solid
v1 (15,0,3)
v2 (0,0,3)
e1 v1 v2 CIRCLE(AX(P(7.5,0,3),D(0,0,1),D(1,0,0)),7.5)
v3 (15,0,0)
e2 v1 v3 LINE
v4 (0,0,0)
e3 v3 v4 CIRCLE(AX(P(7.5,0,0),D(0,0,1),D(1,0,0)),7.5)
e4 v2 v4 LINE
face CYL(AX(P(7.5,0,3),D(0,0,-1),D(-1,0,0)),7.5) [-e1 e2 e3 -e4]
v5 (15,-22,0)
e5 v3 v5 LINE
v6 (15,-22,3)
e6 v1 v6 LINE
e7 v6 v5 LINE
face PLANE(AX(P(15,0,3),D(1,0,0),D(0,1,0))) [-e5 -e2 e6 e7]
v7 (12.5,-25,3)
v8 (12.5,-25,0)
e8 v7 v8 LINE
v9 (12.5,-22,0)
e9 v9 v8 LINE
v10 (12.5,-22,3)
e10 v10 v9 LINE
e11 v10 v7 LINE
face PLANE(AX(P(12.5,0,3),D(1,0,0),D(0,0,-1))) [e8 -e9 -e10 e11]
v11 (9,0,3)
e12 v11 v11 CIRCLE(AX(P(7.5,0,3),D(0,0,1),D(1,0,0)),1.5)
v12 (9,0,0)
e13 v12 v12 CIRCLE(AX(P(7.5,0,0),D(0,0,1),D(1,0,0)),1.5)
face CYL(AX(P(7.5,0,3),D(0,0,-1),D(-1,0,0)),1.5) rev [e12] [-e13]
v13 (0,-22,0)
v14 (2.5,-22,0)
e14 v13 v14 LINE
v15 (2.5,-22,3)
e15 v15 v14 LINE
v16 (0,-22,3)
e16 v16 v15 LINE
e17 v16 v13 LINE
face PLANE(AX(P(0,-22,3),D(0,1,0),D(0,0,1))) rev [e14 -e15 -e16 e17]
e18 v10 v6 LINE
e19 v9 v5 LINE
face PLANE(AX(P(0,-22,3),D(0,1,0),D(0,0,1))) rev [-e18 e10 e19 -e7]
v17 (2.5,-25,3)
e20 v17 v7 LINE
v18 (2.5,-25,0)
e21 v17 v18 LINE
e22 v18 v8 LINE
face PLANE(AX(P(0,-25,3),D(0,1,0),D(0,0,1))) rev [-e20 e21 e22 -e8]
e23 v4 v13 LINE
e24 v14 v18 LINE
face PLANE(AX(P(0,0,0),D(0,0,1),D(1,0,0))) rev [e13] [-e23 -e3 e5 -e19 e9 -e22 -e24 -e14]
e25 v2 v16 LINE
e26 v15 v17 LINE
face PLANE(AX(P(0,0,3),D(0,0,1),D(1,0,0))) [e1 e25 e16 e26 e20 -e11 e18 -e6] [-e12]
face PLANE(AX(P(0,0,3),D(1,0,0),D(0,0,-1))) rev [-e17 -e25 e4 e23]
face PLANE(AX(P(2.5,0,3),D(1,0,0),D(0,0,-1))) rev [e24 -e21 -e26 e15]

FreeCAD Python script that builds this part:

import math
import FreeCAD as App
import Part
import Sketcher
from FreeCAD import Vector
Q = App.Units.Quantity

doc = App.newDocument("Part")
body = doc.addObject("PartDesign::Body", "Body")

# Sketch on XY plane
sketch1 = doc.addObject("Sketcher::SketchObject", "Sketch")
body.addObject(sketch1)
sketch1.AttachmentSupport = (doc.XY_Plane, [""])
sketch1.MapMode = "FlatFace"
sketch1.addGeometry([
    Part.LineSegment(Vector(15, -22, 0), Vector(15, 0, 0)),  # 0
    Part.ArcOfCircle(Part.Circle(Vector(7.5, 0, 0), Vector(0, 0, 1), 7.5), math.radians(0), math.radians(180)),  # 1
    Part.LineSegment(Vector(0, 0, 0), Vector(0, -22, 0)),  # 2
    Part.LineSegment(Vector(0, -22, 0), Vector(2.5, -22, 0)),  # 3
    Part.LineSegment(Vector(2.5, -22, 0), Vector(2.5, -25, 0)),  # 4
    Part.LineSegment(Vector(2.5, -25, 0), Vector(12.5, -25, 0)),  # 5
    Part.LineSegment(Vector(12.5, -25, 0), Vector(12.5, -22, 0)),  # 6
    Part.LineSegment(Vector(12.5, -22, 0), Vector(15, -22, 0)),  # 7
    Part.ArcOfCircle(Part.Circle(Vector(7.5, 0, 0), Vector(0, 0, 1), 1.5), math.radians(180), math.radians(270)),  # 8
    Part.ArcOfCircle(Part.Circle(Vector(7.5, 0, 0), Vector(0, 0, 1), 1.5), math.radians(0), math.radians(180)),  # 9
    Part.ArcOfCircle(Part.Circle(Vector(7.5, 0, 0), Vector(0, 0, 1), 1.5), math.radians(-90), math.radians(0)),  # 10
], False)
sketch1.addConstraint([
    Sketcher.Constraint("Tangent", 0, 2, 1, 1),
    Sketcher.Constraint("Tangent", 1, 2, 2, 1),
    Sketcher.Constraint("Coincident", 2, 2, 3, 1),
    Sketcher.Constraint("Coincident", 3, 2, 4, 1),
    Sketcher.Constraint("Coincident", 4, 2, 5, 1),
    Sketcher.Constraint("Coincident", 5, 2, 6, 1),
    Sketcher.Constraint("Coincident", 6, 2, 7, 1),
    Sketcher.Constraint("Coincident", 7, 2, 0, 1),
    Sketcher.Constraint("Tangent", 8, 1, 9, 2),
    Sketcher.Constraint("Tangent", 9, 1, 10, 2),
    Sketcher.Constraint("Tangent", 10, 1, 8, 2),
    Sketcher.Constraint("Vertical", 0),
    Sketcher.Constraint("Vertical", 2),
    Sketcher.Constraint("Horizontal", 3),
    Sketcher.Constraint("Vertical", 4),
    Sketcher.Constraint("Horizontal", 5),
    Sketcher.Constraint("Vertical", 6),
    Sketcher.Constraint("Horizontal", 7),
    Sketcher.Constraint("Coincident", 1, 2, -1, 1),
    Sketcher.Constraint("Coincident", 8, 3, 1, 3),
    Sketcher.Constraint("PointOnObject", 8, 1, -1),
    Sketcher.Constraint("PointOnObject", 9, 1, -1),
    Sketcher.Constraint("Horizontal", 3, 2, 6, 2),
    Sketcher.Constraint("Vertical", 9, 3, 10, 1),
    Sketcher.Constraint("Equal", 3, 7),
    Sketcher.Constraint("Radius", 1, Q("7.5 mm")),
    Sketcher.Constraint("Radius", 8, Q("1.5 mm")),
    Sketcher.Constraint("DistanceX", 5, 1, 5, 2, Q("10 mm")),
    Sketcher.Constraint("DistanceY", 0, 1, 0, 2, Q("22 mm")),
    Sketcher.Constraint("DistanceY", 4, 2, 4, 1, Q("3 mm")),
])
pad1 = doc.addObject("PartDesign::Pad", "Pad")
body.addObject(pad1)
pad1.Profile = sketch1
pad1.Length = 3

doc.recompute()
